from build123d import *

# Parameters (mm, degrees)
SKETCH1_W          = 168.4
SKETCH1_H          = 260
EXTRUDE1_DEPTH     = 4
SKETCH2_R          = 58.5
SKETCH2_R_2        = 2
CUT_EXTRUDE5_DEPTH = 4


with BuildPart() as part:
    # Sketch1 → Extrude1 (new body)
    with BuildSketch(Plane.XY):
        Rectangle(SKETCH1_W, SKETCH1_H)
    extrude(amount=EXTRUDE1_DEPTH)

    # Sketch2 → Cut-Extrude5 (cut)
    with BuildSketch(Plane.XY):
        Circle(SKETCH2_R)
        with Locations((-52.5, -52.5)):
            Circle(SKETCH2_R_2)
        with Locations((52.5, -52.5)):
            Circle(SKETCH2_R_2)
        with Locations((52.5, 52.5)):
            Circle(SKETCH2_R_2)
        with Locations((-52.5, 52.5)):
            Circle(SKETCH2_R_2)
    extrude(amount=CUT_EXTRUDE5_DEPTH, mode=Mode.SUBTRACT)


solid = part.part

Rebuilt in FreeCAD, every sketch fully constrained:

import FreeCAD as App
import Part
import Sketcher
from FreeCAD import Vector
Q = App.Units.Quantity


def add_polygon(sketch, points):
    """Adds a closed chain of lines whose ends are joined by coincident constraints."""
    first, n = sketch.GeometryCount, len(points)
    for a, b in zip(points, points[1:] + points[:1]):
        sketch.addGeometry(Part.LineSegment(App.Vector(*a, 0), App.Vector(*b, 0)), False)
    for i in range(n):
        sketch.addConstraint(Sketcher.Constraint("Coincident", first + i, 2, first + (i + 1) % n, 1))

doc = App.newDocument("Part")
params = doc.addObject("Spreadsheet::Sheet", "Params")
for row, (alias, value) in enumerate([
    ("sketch1_height", "260 mm"),
    ("sketch1_width", "168.4 mm"),
    ("pad1_length", "4 mm"),
    ("sketch2_diameter", "117 mm"),
    ("sketch2_diameter2", "4 mm"),
    ("pocket1_length", "4 mm"),
], start=1):
    params.set(f"A{row}", alias)
    params.set(f"B{row}", "=" + value)
    params.setAlias(f"B{row}", alias)

body = doc.addObject("PartDesign::Body", "Body")

# Sketch on XY plane
sketch1 = doc.addObject("Sketcher::SketchObject", "Sketch")
body.addObject(sketch1)
sketch1.AttachmentSupport = (doc.XY_Plane, [""])
sketch1.MapMode = "FlatFace"
add_polygon(sketch1, [(-84.2, 130), (-84.2, -130), (84.2, -130), (84.2, 130)])  # lines 0-3
sketch1.addConstraint([
    Sketcher.Constraint("Vertical", 0),
    Sketcher.Constraint("Horizontal", 1),
    Sketcher.Constraint("Vertical", 2),
    Sketcher.Constraint("Horizontal", 3),
    Sketcher.Constraint("Symmetric", 0, 2, 2, 2, -1, 1),
    Sketcher.Constraint("DistanceY", 0, 2, 0, 1, Q("260 mm")),
    Sketcher.Constraint("DistanceX", 1, 1, 1, 2, Q("168.4 mm")),
])
sketch1.setExpression("Constraints[9]", "Params.sketch1_height")
sketch1.setExpression("Constraints[10]", "Params.sketch1_width")
pad1 = doc.addObject("PartDesign::Pad", "Pad")
body.addObject(pad1)
pad1.Profile = sketch1
pad1.setExpression("Length", "Params.pad1_length")

# Sketch on XY plane
sketch2 = doc.addObject("Sketcher::SketchObject", "Sketch001")
body.addObject(sketch2)
sketch2.AttachmentSupport = (doc.XY_Plane, [""])
sketch2.MapMode = "FlatFace"
sketch2.addGeometry([
    Part.Circle(Vector(0, 0, 0), Vector(0, 0, 1), 58.5),  # 0
    Part.Circle(Vector(-52.5, -52.5, 0), Vector(0, 0, 1), 2),  # 1
    Part.Circle(Vector(52.5, -52.5, 0), Vector(0, 0, 1), 2),  # 2
    Part.Circle(Vector(52.5, 52.5, 0), Vector(0, 0, 1), 2),  # 3
    Part.Circle(Vector(-52.5, 52.5, 0), Vector(0, 0, 1), 2),  # 4
], False)
sketch2.addConstraint([
    Sketcher.Constraint("Coincident", 0, 3, -1, 1),
    Sketcher.Constraint("Equal", 1, 2),
    Sketcher.Constraint("Equal", 2, 3),
    Sketcher.Constraint("Equal", 3, 4),
    Sketcher.Constraint("Symmetric", 1, 3, 3, 3, -1, 1),
    Sketcher.Constraint("Symmetric", 2, 3, 4, 3, -1, 1),
    Sketcher.Constraint("Symmetric", 1, 3, 2, 3, -2),
    Sketcher.Constraint("Diameter", 0, Q("117 mm")),
    Sketcher.Constraint("Diameter", 1, Q("4 mm")),
    Sketcher.Constraint("DistanceX", 1, 3, 2, 3, Q("105 mm")),
    Sketcher.Constraint("DistanceY", 2, 3, 3, 3, Q("105 mm")),
])
sketch2.setExpression("Constraints[7]", "Params.sketch2_diameter")
sketch2.setExpression("Constraints[8]", "Params.sketch2_diameter2")
pocket1 = doc.addObject("PartDesign::Pocket", "Pocket")
body.addObject(pocket1)
pocket1.Profile = sketch2
pocket1.setExpression("Length", "Params.pocket1_length")
pocket1.Reversed = True

doc.recompute()
